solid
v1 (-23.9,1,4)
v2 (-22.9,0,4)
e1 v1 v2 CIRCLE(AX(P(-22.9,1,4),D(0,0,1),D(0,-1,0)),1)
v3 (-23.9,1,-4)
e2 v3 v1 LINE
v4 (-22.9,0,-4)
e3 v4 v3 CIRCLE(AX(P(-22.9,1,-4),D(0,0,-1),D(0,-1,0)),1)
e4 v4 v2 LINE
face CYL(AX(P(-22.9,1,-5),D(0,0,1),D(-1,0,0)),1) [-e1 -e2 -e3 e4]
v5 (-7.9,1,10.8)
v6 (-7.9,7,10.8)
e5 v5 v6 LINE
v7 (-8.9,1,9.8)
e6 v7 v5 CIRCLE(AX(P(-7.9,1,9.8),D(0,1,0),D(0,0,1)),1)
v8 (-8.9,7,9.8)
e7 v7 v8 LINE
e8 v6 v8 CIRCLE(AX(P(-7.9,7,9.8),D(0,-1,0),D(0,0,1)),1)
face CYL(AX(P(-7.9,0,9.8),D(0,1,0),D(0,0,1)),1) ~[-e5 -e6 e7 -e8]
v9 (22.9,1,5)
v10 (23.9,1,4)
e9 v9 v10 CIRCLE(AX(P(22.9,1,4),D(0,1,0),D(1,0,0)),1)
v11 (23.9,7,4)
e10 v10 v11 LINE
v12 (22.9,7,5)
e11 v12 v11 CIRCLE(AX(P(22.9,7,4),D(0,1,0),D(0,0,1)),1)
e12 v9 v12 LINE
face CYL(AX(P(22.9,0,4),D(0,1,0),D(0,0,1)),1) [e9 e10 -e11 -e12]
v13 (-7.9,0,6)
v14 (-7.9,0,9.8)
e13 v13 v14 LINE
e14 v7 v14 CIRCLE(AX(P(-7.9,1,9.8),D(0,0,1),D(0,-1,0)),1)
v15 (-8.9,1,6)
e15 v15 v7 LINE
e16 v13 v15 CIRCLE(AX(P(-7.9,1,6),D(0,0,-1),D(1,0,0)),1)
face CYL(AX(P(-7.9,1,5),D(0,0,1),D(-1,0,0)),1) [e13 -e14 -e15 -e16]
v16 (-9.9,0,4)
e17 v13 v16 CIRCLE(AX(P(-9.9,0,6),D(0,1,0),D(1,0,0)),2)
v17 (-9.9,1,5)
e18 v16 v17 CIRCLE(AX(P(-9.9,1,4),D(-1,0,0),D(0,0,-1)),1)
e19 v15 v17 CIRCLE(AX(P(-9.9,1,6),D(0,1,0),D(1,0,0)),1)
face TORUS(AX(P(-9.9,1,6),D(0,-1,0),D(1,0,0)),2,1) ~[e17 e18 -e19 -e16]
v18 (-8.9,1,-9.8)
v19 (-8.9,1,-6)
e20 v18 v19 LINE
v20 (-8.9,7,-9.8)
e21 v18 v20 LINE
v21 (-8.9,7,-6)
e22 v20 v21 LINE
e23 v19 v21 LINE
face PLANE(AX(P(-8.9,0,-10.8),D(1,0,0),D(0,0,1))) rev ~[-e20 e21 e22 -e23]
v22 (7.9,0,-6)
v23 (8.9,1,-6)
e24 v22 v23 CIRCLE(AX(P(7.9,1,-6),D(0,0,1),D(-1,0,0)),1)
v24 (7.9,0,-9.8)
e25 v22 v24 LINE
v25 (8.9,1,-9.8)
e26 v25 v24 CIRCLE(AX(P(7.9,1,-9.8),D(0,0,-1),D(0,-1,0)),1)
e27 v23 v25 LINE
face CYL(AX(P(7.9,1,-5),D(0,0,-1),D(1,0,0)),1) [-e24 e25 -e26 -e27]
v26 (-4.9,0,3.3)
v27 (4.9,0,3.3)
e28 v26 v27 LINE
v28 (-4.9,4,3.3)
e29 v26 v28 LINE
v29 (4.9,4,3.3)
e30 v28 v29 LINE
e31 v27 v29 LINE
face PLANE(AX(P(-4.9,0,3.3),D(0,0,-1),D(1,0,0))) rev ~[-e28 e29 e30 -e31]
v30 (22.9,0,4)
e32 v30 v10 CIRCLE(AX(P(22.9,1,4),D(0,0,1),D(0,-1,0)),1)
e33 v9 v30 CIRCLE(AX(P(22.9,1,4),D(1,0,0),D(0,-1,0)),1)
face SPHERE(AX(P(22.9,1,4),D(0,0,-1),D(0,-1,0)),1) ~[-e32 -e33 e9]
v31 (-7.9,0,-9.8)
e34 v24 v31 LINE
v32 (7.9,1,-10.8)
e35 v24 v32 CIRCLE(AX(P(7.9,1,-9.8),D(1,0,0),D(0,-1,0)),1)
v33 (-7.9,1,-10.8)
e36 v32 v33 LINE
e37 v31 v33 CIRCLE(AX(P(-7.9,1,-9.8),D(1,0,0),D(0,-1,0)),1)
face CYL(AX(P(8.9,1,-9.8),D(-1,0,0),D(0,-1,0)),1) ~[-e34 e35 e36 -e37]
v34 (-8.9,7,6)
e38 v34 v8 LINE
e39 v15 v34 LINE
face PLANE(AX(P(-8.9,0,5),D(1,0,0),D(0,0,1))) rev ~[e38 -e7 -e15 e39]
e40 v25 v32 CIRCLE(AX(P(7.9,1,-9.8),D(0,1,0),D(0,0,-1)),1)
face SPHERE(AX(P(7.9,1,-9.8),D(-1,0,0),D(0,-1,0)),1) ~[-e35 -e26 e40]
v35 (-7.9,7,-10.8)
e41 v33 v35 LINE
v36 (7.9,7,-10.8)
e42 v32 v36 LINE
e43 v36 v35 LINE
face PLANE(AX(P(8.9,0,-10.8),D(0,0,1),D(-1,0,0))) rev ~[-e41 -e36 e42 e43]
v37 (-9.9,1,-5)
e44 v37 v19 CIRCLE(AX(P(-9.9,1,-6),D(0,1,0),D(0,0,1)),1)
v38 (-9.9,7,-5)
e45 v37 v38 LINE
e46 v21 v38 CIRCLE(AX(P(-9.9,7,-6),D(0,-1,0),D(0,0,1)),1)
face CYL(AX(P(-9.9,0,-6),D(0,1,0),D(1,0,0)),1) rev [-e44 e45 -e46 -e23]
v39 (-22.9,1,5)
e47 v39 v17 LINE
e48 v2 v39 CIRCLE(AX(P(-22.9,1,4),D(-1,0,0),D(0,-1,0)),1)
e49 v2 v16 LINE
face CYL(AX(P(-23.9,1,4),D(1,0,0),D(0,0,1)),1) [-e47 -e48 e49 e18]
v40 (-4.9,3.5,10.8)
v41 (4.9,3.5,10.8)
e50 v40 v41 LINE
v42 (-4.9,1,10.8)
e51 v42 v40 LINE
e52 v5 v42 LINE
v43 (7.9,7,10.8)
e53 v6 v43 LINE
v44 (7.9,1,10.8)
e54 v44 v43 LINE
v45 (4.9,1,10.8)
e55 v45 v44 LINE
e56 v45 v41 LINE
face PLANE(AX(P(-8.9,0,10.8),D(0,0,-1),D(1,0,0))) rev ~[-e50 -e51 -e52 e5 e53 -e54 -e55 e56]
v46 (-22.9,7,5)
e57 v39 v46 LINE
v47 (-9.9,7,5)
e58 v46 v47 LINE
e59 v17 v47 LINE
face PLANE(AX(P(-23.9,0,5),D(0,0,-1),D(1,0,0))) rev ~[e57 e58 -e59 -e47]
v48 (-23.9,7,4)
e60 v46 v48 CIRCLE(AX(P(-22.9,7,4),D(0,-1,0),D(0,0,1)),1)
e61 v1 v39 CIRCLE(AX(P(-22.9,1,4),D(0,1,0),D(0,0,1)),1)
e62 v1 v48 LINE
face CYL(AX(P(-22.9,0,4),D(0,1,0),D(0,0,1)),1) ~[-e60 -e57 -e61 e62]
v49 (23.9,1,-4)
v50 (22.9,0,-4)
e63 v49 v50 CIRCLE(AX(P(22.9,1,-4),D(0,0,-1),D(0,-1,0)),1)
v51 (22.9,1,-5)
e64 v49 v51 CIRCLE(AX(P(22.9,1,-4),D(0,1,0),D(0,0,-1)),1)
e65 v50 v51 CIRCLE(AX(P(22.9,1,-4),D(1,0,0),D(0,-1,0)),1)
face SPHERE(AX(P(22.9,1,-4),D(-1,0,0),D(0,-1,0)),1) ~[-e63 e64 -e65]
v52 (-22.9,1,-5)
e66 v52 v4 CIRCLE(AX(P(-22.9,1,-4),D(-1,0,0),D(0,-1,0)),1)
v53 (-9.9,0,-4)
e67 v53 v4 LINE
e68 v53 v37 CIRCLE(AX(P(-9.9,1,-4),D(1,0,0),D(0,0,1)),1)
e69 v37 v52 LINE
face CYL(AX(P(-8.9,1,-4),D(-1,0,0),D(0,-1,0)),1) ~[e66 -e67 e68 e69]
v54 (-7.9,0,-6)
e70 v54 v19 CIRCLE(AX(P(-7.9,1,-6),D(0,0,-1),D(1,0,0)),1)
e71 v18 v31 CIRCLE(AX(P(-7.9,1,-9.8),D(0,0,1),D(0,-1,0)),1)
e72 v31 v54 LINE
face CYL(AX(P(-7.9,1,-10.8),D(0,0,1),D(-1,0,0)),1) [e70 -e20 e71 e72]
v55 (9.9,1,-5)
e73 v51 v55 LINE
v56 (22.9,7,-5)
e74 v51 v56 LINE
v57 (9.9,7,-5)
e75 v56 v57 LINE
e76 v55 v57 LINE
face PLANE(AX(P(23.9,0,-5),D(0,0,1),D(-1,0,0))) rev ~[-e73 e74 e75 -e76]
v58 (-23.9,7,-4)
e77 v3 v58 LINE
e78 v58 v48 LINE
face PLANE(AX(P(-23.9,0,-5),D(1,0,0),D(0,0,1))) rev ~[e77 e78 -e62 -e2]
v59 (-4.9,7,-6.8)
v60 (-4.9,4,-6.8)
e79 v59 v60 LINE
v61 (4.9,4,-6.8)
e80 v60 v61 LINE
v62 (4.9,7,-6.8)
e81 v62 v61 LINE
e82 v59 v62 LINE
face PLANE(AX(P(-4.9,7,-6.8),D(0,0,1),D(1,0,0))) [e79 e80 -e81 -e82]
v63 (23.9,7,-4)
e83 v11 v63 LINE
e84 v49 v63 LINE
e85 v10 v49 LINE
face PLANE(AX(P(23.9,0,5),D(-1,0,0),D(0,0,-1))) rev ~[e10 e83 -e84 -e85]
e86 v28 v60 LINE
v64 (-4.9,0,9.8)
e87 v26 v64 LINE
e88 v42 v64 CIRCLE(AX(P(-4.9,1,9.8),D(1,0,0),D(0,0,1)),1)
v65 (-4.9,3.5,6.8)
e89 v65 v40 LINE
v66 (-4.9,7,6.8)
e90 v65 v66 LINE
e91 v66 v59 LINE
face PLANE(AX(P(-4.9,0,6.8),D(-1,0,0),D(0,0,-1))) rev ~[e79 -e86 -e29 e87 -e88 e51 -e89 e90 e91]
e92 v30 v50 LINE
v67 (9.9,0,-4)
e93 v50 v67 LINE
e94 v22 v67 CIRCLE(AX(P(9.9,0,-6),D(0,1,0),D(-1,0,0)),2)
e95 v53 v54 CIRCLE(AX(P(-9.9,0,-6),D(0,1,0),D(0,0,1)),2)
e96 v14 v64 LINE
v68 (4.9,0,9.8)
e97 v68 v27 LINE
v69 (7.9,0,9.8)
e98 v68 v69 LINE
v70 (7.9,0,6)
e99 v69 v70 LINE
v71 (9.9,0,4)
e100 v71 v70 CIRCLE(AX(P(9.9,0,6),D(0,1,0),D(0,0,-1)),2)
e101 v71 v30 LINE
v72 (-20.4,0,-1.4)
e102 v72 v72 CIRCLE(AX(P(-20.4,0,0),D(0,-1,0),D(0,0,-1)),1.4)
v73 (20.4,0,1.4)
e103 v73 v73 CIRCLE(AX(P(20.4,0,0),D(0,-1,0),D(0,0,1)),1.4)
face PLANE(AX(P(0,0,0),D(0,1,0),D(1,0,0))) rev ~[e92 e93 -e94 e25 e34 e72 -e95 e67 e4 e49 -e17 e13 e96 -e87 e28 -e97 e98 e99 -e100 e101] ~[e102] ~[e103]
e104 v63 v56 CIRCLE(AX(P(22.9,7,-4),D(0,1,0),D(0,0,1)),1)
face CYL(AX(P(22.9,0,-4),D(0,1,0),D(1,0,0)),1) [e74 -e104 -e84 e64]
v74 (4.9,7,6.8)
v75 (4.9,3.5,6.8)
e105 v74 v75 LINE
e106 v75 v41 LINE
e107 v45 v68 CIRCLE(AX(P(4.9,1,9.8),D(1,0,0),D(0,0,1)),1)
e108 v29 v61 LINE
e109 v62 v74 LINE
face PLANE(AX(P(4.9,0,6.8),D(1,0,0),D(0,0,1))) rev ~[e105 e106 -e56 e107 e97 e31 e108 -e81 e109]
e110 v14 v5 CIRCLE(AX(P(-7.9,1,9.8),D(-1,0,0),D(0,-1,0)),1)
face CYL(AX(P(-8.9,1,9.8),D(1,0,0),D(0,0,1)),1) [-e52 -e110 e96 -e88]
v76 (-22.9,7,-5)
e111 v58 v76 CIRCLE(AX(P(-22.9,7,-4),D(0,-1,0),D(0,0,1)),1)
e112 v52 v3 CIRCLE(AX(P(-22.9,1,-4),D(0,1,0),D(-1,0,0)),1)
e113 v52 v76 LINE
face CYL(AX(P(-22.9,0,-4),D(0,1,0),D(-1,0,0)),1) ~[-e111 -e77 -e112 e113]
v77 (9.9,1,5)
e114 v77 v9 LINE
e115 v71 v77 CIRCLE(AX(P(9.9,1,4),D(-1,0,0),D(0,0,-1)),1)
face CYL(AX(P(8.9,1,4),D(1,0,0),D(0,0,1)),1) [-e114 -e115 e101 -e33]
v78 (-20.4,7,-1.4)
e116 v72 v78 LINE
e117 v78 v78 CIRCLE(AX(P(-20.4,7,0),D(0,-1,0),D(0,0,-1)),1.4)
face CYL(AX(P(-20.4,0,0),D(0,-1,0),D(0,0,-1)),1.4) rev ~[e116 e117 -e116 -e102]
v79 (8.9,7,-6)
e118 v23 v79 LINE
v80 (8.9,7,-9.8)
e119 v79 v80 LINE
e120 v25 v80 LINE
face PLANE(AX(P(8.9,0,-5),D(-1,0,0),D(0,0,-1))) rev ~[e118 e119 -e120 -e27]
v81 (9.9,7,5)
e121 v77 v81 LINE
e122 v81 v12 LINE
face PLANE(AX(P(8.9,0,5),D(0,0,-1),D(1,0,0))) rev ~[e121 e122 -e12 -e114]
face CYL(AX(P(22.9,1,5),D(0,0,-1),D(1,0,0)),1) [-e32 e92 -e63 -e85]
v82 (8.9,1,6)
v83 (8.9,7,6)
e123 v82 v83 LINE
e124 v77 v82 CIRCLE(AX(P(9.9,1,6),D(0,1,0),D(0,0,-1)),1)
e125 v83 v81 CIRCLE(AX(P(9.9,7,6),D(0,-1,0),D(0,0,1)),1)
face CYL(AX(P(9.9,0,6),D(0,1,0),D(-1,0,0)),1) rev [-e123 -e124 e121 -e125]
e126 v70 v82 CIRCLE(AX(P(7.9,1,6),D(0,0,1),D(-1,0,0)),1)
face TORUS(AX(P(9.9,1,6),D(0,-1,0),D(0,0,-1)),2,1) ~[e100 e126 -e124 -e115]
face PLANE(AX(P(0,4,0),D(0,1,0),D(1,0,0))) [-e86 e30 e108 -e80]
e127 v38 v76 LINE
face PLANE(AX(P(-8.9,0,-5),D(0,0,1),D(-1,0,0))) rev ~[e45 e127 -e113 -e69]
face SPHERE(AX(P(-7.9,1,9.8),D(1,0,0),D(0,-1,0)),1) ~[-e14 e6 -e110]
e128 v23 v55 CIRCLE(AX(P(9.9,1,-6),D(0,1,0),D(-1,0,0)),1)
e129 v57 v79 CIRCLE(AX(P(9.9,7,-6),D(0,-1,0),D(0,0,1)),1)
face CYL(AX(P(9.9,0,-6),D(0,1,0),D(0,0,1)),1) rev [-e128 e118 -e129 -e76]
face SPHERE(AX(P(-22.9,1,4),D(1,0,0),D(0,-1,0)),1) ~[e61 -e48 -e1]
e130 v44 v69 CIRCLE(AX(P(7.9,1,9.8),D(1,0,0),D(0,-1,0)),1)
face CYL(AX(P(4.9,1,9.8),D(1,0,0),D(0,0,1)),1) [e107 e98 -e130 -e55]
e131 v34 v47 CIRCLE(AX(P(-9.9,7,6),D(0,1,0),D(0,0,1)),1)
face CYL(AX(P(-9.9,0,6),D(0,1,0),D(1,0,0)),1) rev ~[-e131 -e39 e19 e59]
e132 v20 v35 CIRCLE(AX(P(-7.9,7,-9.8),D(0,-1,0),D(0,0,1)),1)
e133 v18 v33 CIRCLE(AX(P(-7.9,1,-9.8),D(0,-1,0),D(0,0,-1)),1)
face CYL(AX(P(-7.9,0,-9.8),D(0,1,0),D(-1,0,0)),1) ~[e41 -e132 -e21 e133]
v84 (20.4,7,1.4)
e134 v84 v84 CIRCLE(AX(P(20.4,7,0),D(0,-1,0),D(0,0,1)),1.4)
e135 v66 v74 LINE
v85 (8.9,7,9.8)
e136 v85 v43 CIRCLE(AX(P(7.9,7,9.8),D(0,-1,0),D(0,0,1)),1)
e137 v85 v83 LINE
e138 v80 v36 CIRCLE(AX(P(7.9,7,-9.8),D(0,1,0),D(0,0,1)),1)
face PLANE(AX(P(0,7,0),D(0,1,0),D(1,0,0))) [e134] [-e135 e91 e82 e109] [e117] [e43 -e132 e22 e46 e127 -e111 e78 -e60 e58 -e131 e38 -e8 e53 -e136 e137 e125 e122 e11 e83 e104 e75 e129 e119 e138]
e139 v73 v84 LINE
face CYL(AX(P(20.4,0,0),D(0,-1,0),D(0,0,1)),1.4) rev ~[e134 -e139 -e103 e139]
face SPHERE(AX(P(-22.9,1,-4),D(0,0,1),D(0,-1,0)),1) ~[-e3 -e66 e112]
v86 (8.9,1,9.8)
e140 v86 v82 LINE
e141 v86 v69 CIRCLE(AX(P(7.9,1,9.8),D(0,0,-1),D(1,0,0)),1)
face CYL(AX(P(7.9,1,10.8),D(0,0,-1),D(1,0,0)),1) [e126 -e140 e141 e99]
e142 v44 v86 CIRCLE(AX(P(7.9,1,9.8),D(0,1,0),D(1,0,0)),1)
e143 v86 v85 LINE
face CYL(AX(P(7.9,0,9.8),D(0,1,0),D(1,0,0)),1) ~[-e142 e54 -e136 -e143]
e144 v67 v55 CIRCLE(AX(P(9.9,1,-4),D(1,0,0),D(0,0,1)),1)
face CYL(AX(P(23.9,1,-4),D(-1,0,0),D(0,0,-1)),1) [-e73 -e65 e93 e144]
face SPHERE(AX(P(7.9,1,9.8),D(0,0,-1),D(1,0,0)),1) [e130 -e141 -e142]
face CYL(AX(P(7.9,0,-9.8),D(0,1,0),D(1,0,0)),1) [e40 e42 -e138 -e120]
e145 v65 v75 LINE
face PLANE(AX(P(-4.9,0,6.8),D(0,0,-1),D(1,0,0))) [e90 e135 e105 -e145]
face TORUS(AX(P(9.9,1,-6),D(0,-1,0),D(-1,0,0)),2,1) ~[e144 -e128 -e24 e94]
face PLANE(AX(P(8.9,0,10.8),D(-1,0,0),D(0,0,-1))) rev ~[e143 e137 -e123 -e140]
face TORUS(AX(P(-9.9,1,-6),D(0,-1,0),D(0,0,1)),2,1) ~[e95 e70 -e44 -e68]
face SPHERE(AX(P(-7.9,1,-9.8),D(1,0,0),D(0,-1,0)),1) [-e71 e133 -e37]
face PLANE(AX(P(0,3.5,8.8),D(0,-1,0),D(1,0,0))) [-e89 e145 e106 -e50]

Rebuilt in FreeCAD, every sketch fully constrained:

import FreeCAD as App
import Part
import Sketcher
Q = App.Units.Quantity


def edges_at(feature, points):
    """Names of the edges that pass closest to the given points."""
    edges = feature.Shape.Edges
    near = lambda p: min(range(len(edges)), key=lambda i: edges[i].distToShape(Part.Vertex(*p))[0])
    return sorted({f"Edge{near(p) + 1}" for p in points})

doc = App.newDocument("Part")
body = doc.addObject("PartDesign::Body", "Body")

# Sketch on XZ plane
sketch1 = body.newObject("Sketcher::SketchObject", "Sketch")
sketch1.AttachmentSupport = (doc.getObject("XZ_Plane"), [""])
sketch1.MapMode = "FlatFace"
sketch1.addGeometry([
    Part.LineSegment(App.Vector(-8.9, -10.8, 0), App.Vector(-8.9, -5, 0)),  # 0
    Part.LineSegment(App.Vector(-8.9, -5, 0), App.Vector(-23.9, -5, 0)),  # 1
    Part.LineSegment(App.Vector(-23.9, -5, 0), App.Vector(-23.9, 5, 0)),  # 2
    Part.LineSegment(App.Vector(-23.9, 5, 0), App.Vector(-8.9, 5, 0)),  # 3
    Part.LineSegment(App.Vector(-8.9, 5, 0), App.Vector(-8.9, 10.8, 0)),  # 4
    Part.LineSegment(App.Vector(-8.9, 10.8, 0), App.Vector(8.9, 10.8, 0)),  # 5
    Part.LineSegment(App.Vector(8.9, 10.8, 0), App.Vector(8.9, 5, 0)),  # 6
    Part.LineSegment(App.Vector(8.9, 5, 0), App.Vector(23.9, 5, 0)),  # 7
    Part.LineSegment(App.Vector(23.9, 5, 0), App.Vector(23.9, -5, 0)),  # 8
    Part.LineSegment(App.Vector(23.9, -5, 0), App.Vector(8.9, -5, 0)),  # 9
    Part.LineSegment(App.Vector(8.9, -5, 0), App.Vector(8.9, -10.8, 0)),  # 10
    Part.LineSegment(App.Vector(8.9, -10.8, 0), App.Vector(-8.9, -10.8, 0)),  # 11
    Part.LineSegment(App.Vector(4.9, 6.8, 0), App.Vector(-4.9, 6.8, 0)),  # 12
    Part.LineSegment(App.Vector(-4.9, 6.8, 0), App.Vector(-4.9, 3.3, 0)),  # 13
    Part.LineSegment(App.Vector(-4.9, 3.3, 0), App.Vector(4.9, 3.3, 0)),  # 14
    Part.LineSegment(App.Vector(4.9, 3.3, 0), App.Vector(4.9, 6.8, 0)),  # 15
], False)
sketch1.addConstraint([
    Sketcher.Constraint("Coincident", 0, 2, 1, 1),
    Sketcher.Constraint("Coincident", 1, 2, 2, 1),
    Sketcher.Constraint("Coincident", 2, 2, 3, 1),
    Sketcher.Constraint("Coincident", 3, 2, 4, 1),
    Sketcher.Constraint("Coincident", 4, 2, 5, 1),
    Sketcher.Constraint("Coincident", 5, 2, 6, 1),
    Sketcher.Constraint("Coincident", 6, 2, 7, 1),
    Sketcher.Constraint("Coincident", 7, 2, 8, 1),
    Sketcher.Constraint("Coincident", 8, 2, 9, 1),
    Sketcher.Constraint("Coincident", 9, 2, 10, 1),
    Sketcher.Constraint("Coincident", 10, 2, 11, 1),
    Sketcher.Constraint("Coincident", 11, 2, 0, 1),
    Sketcher.Constraint("Coincident", 12, 2, 13, 1),
    Sketcher.Constraint("Coincident", 13, 2, 14, 1),
    Sketcher.Constraint("Coincident", 14, 2, 15, 1),
    Sketcher.Constraint("Coincident", 15, 2, 12, 1),
    Sketcher.Constraint("Vertical", 0),
    Sketcher.Constraint("Horizontal", 1),
    Sketcher.Constraint("Vertical", 2),
    Sketcher.Constraint("Horizontal", 3),
    Sketcher.Constraint("Vertical", 4),
    Sketcher.Constraint("Horizontal", 5),
    Sketcher.Constraint("Vertical", 6),
    Sketcher.Constraint("Horizontal", 7),
    Sketcher.Constraint("Vertical", 8),
    Sketcher.Constraint("Horizontal", 9),
    Sketcher.Constraint("Vertical", 10),
    Sketcher.Constraint("Horizontal", 11),
    Sketcher.Constraint("Horizontal", 12),
    Sketcher.Constraint("Vertical", 13),
    Sketcher.Constraint("Horizontal", 14),
    Sketcher.Constraint("Vertical", 15),
    Sketcher.Constraint("Symmetric", 0, 2, 6, 2, -1, 1),
    Sketcher.Constraint("Symmetric", 2, 2, 8, 2, -1, 1),
    Sketcher.Constraint("Symmetric", 4, 2, 10, 2, -1, 1),
    Sketcher.Constraint("Symmetric", 3, 2, 6, 2, -2),
    Sketcher.Constraint("DistanceX", 1, 2, 1, 1, Q("15 mm")),
    Sketcher.Constraint("DistanceY", 2, 1, 2, 2, Q("10 mm")),
    Sketcher.Constraint("DistanceX", 5, 1, 5, 2, Q("17.8 mm")),
    Sketcher.Constraint("DistanceX", 12, 2, 12, 1, Q("9.8 mm")),
    Sketcher.Constraint("DistanceY", 0, 1, 0, 2, Q("5.8 mm")),
    Sketcher.Constraint("DistanceY", 13, 2, 13, 1, Q("3.5 mm")),
    Sketcher.Constraint("DistanceX", 3, 2, 12, 2, Q("4 mm")),
    Sketcher.Constraint("DistanceY", 12, 2, 4, 2, Q("4 mm")),
])
pad1 = body.newObject("PartDesign::Pad", "Pad")
pad1.Profile = sketch1
pad1.Length = 7
pad1.Reversed = True

# Sketch on XZ plane
sketch2 = body.newObject("Sketcher::SketchObject", "Sketch001")
sketch2.AttachmentSupport = (doc.getObject("XZ_Plane"), [""])
sketch2.MapMode = "FlatFace"
sketch2.AttachmentOffset = App.Placement(App.Vector(0, 0, -7), App.Rotation())
sketch2.addGeometry([
    Part.LineSegment(App.Vector(-5, -7, 0), App.Vector(-5, 7, 0)),
    Part.LineSegment(App.Vector(-5, 7, 0), App.Vector(5, 7, 0)),
    Part.LineSegment(App.Vector(5, 7, 0), App.Vector(5, -7, 0)),
    Part.LineSegment(App.Vector(5, -7, 0), App.Vector(-5, -7, 0)),
], False)
sketch2.addConstraint([
    Sketcher.Constraint("Coincident", 0, 2, 1, 1),
    Sketcher.Constraint("Coincident", 1, 2, 2, 1),
    Sketcher.Constraint("Coincident", 2, 2, 3, 1),
    Sketcher.Constraint("Coincident", 3, 2, 0, 1),
    Sketcher.Constraint("Vertical", 0),
    Sketcher.Constraint("Horizontal", 1),
    Sketcher.Constraint("Vertical", 2),
    Sketcher.Constraint("Horizontal", 3),
    Sketcher.Constraint("Symmetric", 0, 2, 2, 2, -1, 1),
    Sketcher.Constraint("DistanceX", 1, 1, 1, 2, Q("9.8 mm")),
    Sketcher.Constraint("DistanceY", 0, 1, 0, 2, Q("13.6 mm")),
])
pocket1 = body.newObject("PartDesign::Pocket", "Pocket")
pocket1.Profile = sketch2
pocket1.Length = 3
pocket1.Reversed = True

# Sketch on XZ plane
sketch3 = body.newObject("Sketcher::SketchObject", "Sketch002")
sketch3.AttachmentSupport = (doc.getObject("XZ_Plane"), [""])
sketch3.MapMode = "FlatFace"
sketch3.addGeometry([
    Part.Circle(App.Vector(-20.4, 0, 0), App.Vector(0, 0, 1), 1.4),
    Part.Circle(App.Vector(20.4, 0, 0), App.Vector(0, 0, 1), 1.4),
], False)
sketch3.addConstraint([
    Sketcher.Constraint("Equal", 0, 1),
    Sketcher.Constraint("Symmetric", 0, 3, 1, 3, -1, 1),
    Sketcher.Constraint("PointOnObject", 0, 3, -1),
    Sketcher.Constraint("Diameter", 0, Q("2.8 mm")),
    Sketcher.Constraint("DistanceX", 0, 3, -1, 1, Q("20.4 mm")),
])
pocket2 = body.newObject("PartDesign::Pocket", "Pocket001")
pocket2.Profile = sketch3
pocket2.Type = "ThroughAll"

# Sketch on XZ plane
sketch4 = body.newObject("Sketcher::SketchObject", "Sketch003")
sketch4.AttachmentSupport = (doc.getObject("XZ_Plane"), [""])
sketch4.MapMode = "FlatFace"
sketch4.addGeometry([
    Part.LineSegment(App.Vector(-4.9, 10.8, 0), App.Vector(-4.9, 6.8, 0)),
    Part.LineSegment(App.Vector(-4.9, 6.8, 0), App.Vector(4.9, 6.8, 0)),
    Part.LineSegment(App.Vector(4.9, 6.8, 0), App.Vector(4.9, 10.8, 0)),
    Part.LineSegment(App.Vector(4.9, 10.8, 0), App.Vector(-4.9, 10.8, 0)),
], False)
sketch4.addConstraint([
    Sketcher.Constraint("Coincident", 0, 2, 1, 1),
    Sketcher.Constraint("Coincident", 1, 2, 2, 1),
    Sketcher.Constraint("Coincident", 2, 2, 3, 1),
    Sketcher.Constraint("Coincident", 3, 2, 0, 1),
    Sketcher.Constraint("Vertical", 0),
    Sketcher.Constraint("Horizontal", 1),
    Sketcher.Constraint("Vertical", 2),
    Sketcher.Constraint("Horizontal", 3),
    Sketcher.Constraint("DistanceY", 0, 2, 0, 1, Q("4 mm")),
    Sketcher.Constraint("DistanceX", 1, 1, 1, 2, Q("9.8 mm")),
    Sketcher.Constraint("DistanceX", 0, 2, -1, 1, Q("4.9 mm")),
    Sketcher.Constraint("DistanceY", -1, 1, 0, 2, Q("6.8 mm")),
])
pocket3 = body.newObject("PartDesign::Pocket", "Pocket002")
pocket3.Profile = sketch4
pocket3.Length = 3.5
doc.recompute()

fillet = body.newObject("PartDesign::Fillet", "Fillet")
fillet.Base = (pocket3, edges_at(pocket3, [
    (0, 0, -10.8),
    (8.9, 0, -7.9),
    (16.4, 0, -5),
    (23.9, 0, 0),
    (16.4, 0, 5),
    (8.9, 0, 7.9),
    (-6.9, 0, 10.8),
    (-8.9, 0, 7.9),
    (-16.4, 0, 5),
    (-23.9, 0, 0),
    (-16.4, 0, -5),
    (-8.9, 0, -7.9),
    (8.9, 3.5, -10.8),
    (8.9, 3.5, -5),
    (23.9, 3.5, -5),
    (23.9, 3.5, 5),
    (8.9, 3.5, 5),
    (8.9, 3.5, 10.8),
    (-8.9, 3.5, 10.8),
    (-8.9, 3.5, 5),
    (-23.9, 3.5, 5),
    (-23.9, 3.5, -5),
    (-8.9, 3.5, -5),
    (-8.9, 3.5, -10.8),
    (6.9, 0, 10.8),
]))
fillet.Radius = 1

doc.recompute()
